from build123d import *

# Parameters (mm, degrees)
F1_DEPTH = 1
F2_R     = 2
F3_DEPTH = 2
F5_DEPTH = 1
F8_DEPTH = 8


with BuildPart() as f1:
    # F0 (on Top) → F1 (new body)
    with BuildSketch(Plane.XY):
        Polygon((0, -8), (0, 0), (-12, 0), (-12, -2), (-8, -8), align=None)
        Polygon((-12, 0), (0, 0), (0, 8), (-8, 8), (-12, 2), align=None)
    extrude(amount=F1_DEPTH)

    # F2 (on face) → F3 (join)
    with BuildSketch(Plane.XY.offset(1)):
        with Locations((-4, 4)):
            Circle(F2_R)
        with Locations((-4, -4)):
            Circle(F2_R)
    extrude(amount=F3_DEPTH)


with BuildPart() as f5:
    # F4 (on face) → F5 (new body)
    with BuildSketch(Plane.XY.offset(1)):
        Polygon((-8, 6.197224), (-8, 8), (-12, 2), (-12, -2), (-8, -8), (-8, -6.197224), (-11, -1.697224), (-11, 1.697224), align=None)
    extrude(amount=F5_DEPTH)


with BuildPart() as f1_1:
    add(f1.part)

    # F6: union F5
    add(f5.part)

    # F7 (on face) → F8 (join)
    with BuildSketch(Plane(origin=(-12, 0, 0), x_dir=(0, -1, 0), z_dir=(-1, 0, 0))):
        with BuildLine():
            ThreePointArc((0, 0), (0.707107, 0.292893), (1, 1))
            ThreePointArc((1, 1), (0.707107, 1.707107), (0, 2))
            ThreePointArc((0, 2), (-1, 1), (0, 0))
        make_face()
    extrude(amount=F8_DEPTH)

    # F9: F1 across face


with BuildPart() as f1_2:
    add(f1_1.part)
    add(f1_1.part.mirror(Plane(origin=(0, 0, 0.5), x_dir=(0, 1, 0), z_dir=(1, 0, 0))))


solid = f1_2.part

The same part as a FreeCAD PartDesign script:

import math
import FreeCAD as App
import Part
import Sketcher


def add_polygon(sketch, points):
    """Adds a closed chain of lines whose ends are joined by coincident constraints."""
    first, n = sketch.GeometryCount, len(points)
    for a, b in zip(points, points[1:] + points[:1]):
        sketch.addGeometry(Part.LineSegment(App.Vector(*a, 0), App.Vector(*b, 0)), False)
    for i in range(n):
        sketch.addConstraint(Sketcher.Constraint("Coincident", first + i, 2, first + (i + 1) % n, 1))

doc = App.newDocument("Part")
body = doc.addObject("PartDesign::Body", "Body")

sketch1 = body.newObject("Sketcher::SketchObject", "Sketch")
sketch1.AttachmentSupport = (doc.getObject("XY_Plane"), [""])
sketch1.MapMode = "FlatFace"
add_polygon(sketch1, [(0, -8), (0, 8), (-8, 8), (-12, 2), (-12, -2), (-8, -8)])
sketch1.addConstraint(Sketcher.Constraint("Vertical", 0))
sketch1.addConstraint(Sketcher.Constraint("Horizontal", 1))
sketch1.addConstraint(Sketcher.Constraint("Vertical", 3))
sketch1.addConstraint(Sketcher.Constraint("Horizontal", 5))
sketch1.addConstraint(Sketcher.Constraint("Symmetric", 0, 2, 5, 2, -1, 1))
sketch1.addConstraint(Sketcher.Constraint("Vertical", 1, 2, 4, 2))
sketch1.addConstraint(Sketcher.Constraint("Equal", 2, 4))
sketch1.addConstraint(Sketcher.Constraint("DistanceX", 1, 2, 1, 1, 8.0))
sketch1.addConstraint(Sketcher.Constraint("DistanceY", 0, 1, 0, 2, 16.0))
sketch1.addConstraint(Sketcher.Constraint("DistanceY", 3, 2, 3, 1, 4.0))
sketch1.addConstraint(Sketcher.Constraint("DistanceX", 2, 2, -1, 1, 12.0))
pad1 = body.newObject("PartDesign::Pad", "Pad")
pad1.Profile = sketch1
pad1.Length = 1

sketch2 = body.newObject("Sketcher::SketchObject", "Sketch001")
sketch2.AttachmentSupport = (doc.getObject("XY_Plane"), [""])
sketch2.MapMode = "FlatFace"
sketch2.AttachmentOffset = App.Placement(App.Vector(0, 0, 1), App.Rotation())
sketch2.addGeometry(Part.Circle(App.Vector(-4, 4, 0), App.Vector(0, 0, 1), 2), False)
sketch2.addGeometry(Part.Circle(App.Vector(-4, -4, 0), App.Vector(0, 0, 1), 2), False)
sketch2.addConstraint(Sketcher.Constraint("Equal", 0, 1))
sketch2.addConstraint(Sketcher.Constraint("Symmetric", 0, 3, 1, 3, -1))
sketch2.addConstraint(Sketcher.Constraint("Diameter", 0, 4.0))
sketch2.addConstraint(Sketcher.Constraint("DistanceX", 0, 3, -1, 1, 4.0))
sketch2.addConstraint(Sketcher.Constraint("DistanceY", -1, 1, 0, 3, 4.0))
pad2 = body.newObject("PartDesign::Pad", "Pad001")
pad2.Profile = sketch2
pad2.Length = 2
body2 = doc.addObject("PartDesign::Body", "Body001")

sketch3 = body2.newObject("Sketcher::SketchObject", "Sketch002")
sketch3.AttachmentSupport = (doc.getObject("XY_Plane001"), [""])
sketch3.MapMode = "FlatFace"
sketch3.AttachmentOffset = App.Placement(App.Vector(0, 0, 1), App.Rotation())
add_polygon(sketch3, [(-8, 6.2), (-8, 8), (-12, 2), (-12, -2), (-8, -8), (-8, -6.2), (-11, -1.7), (-11, 1.7)])
sketch3.addConstraint(Sketcher.Constraint("Vertical", 0))
sketch3.addConstraint(Sketcher.Constraint("Vertical", 2))
sketch3.addConstraint(Sketcher.Constraint("Vertical", 4))
sketch3.addConstraint(Sketcher.Constraint("Vertical", 6))
sketch3.addConstraint(Sketcher.Constraint("Symmetric", 0, 2, 3, 2, -1))
sketch3.addConstraint(Sketcher.Constraint("Parallel", 3, 5))
sketch3.addConstraint(Sketcher.Constraint("Parallel", 1, 7))
sketch3.addConstraint(Sketcher.Constraint("Equal", 0, 4))
sketch3.addConstraint(Sketcher.Constraint("Equal", 1, 3))
sketch3.addConstraint(Sketcher.Constraint("DistanceY", 2, 2, 2, 1, 4.0))
sketch3.addConstraint(Sketcher.Constraint("DistanceX", 0, 2, -1, 1, 8.0))
sketch3.addConstraint(Sketcher.Constraint("DistanceY", -1, 1, 0, 2, 8.0))
sketch3.addConstraint(Sketcher.Constraint("DistanceX", 1, 2, -1, 1, 12.0))
sketch3.addConstraint(Sketcher.Constraint("DistanceX", 5, 2, -1, 1, 11.0))
sketch3.addConstraint(Sketcher.Constraint("DistanceY", 6, 1, 6, 2, 3.394448))
pad3 = body2.newObject("PartDesign::Pad", "Pad002")
pad3.Profile = sketch3
pad3.Length = 1
doc.recompute()

boolean = body.newObject("PartDesign::Boolean", "Boolean")
boolean.Type = "Fuse"
boolean.addObjects([body2])

sketch4 = body.newObject("Sketcher::SketchObject", "Sketch003")
sketch4.AttachmentSupport = (doc.getObject("YZ_Plane"), [""])
sketch4.MapMode = "FlatFace"
sketch4.AttachmentOffset = App.Placement(App.Vector(0, 0, -12), App.Rotation())
sketch4.addGeometry(Part.ArcOfCircle(Part.Circle(App.Vector(0, 1, 0), App.Vector(0, 0, 1), 1), math.radians(180), math.radians(270)), False)
sketch4.addGeometry(Part.ArcOfCircle(Part.Circle(App.Vector(0, 1, 0), App.Vector(0, 0, 1), 1), math.radians(90), math.radians(180)), False)
sketch4.addGeometry(Part.ArcOfCircle(Part.Circle(App.Vector(0, 1, 0), App.Vector(0, 0, 1), 1), math.radians(-90), math.radians(90)), False)
sketch4.addConstraint(Sketcher.Constraint("Tangent", 0, 1, 1, 2))
sketch4.addConstraint(Sketcher.Constraint("Tangent", 1, 1, 2, 2))
sketch4.addConstraint(Sketcher.Constraint("Tangent", 2, 1, 0, 2))
sketch4.addConstraint(Sketcher.Constraint("Coincident", 2, 1, -1, 1))
sketch4.addConstraint(Sketcher.Constraint("PointOnObject", 0, 3, -2))
sketch4.addConstraint(Sketcher.Constraint("PointOnObject", 1, 1, -2))
sketch4.addConstraint(Sketcher.Constraint("Horizontal", 2, 3, 0, 1))
sketch4.addConstraint(Sketcher.Constraint("Radius", 0, 0.999999))
pad4 = body.newObject("PartDesign::Pad", "Pad003")
pad4.Profile = sketch4
pad4.Length = 8
pad4.Reversed = True
body3 = doc.addObject("PartDesign::Body", "Body002")
doc.recompute()

body3.BaseFeature = body
doc.recompute()

mirroring = doc.addObject("Part::Mirroring", "Mirroring")
mirroring.Source = body
mirroring.Base = App.Vector(0, 0, 0.5)
mirroring.Normal = App.Vector(1, 0, 0)
body4 = doc.addObject("PartDesign::Body", "Body003")
body4.BaseFeature = mirroring
boolean2 = body3.newObject("PartDesign::Boolean", "Boolean001")
boolean2.Type = "Fuse"
boolean2.addObjects([body4])
doc.recompute()
mirroring.Visibility = False

doc.recompute()
